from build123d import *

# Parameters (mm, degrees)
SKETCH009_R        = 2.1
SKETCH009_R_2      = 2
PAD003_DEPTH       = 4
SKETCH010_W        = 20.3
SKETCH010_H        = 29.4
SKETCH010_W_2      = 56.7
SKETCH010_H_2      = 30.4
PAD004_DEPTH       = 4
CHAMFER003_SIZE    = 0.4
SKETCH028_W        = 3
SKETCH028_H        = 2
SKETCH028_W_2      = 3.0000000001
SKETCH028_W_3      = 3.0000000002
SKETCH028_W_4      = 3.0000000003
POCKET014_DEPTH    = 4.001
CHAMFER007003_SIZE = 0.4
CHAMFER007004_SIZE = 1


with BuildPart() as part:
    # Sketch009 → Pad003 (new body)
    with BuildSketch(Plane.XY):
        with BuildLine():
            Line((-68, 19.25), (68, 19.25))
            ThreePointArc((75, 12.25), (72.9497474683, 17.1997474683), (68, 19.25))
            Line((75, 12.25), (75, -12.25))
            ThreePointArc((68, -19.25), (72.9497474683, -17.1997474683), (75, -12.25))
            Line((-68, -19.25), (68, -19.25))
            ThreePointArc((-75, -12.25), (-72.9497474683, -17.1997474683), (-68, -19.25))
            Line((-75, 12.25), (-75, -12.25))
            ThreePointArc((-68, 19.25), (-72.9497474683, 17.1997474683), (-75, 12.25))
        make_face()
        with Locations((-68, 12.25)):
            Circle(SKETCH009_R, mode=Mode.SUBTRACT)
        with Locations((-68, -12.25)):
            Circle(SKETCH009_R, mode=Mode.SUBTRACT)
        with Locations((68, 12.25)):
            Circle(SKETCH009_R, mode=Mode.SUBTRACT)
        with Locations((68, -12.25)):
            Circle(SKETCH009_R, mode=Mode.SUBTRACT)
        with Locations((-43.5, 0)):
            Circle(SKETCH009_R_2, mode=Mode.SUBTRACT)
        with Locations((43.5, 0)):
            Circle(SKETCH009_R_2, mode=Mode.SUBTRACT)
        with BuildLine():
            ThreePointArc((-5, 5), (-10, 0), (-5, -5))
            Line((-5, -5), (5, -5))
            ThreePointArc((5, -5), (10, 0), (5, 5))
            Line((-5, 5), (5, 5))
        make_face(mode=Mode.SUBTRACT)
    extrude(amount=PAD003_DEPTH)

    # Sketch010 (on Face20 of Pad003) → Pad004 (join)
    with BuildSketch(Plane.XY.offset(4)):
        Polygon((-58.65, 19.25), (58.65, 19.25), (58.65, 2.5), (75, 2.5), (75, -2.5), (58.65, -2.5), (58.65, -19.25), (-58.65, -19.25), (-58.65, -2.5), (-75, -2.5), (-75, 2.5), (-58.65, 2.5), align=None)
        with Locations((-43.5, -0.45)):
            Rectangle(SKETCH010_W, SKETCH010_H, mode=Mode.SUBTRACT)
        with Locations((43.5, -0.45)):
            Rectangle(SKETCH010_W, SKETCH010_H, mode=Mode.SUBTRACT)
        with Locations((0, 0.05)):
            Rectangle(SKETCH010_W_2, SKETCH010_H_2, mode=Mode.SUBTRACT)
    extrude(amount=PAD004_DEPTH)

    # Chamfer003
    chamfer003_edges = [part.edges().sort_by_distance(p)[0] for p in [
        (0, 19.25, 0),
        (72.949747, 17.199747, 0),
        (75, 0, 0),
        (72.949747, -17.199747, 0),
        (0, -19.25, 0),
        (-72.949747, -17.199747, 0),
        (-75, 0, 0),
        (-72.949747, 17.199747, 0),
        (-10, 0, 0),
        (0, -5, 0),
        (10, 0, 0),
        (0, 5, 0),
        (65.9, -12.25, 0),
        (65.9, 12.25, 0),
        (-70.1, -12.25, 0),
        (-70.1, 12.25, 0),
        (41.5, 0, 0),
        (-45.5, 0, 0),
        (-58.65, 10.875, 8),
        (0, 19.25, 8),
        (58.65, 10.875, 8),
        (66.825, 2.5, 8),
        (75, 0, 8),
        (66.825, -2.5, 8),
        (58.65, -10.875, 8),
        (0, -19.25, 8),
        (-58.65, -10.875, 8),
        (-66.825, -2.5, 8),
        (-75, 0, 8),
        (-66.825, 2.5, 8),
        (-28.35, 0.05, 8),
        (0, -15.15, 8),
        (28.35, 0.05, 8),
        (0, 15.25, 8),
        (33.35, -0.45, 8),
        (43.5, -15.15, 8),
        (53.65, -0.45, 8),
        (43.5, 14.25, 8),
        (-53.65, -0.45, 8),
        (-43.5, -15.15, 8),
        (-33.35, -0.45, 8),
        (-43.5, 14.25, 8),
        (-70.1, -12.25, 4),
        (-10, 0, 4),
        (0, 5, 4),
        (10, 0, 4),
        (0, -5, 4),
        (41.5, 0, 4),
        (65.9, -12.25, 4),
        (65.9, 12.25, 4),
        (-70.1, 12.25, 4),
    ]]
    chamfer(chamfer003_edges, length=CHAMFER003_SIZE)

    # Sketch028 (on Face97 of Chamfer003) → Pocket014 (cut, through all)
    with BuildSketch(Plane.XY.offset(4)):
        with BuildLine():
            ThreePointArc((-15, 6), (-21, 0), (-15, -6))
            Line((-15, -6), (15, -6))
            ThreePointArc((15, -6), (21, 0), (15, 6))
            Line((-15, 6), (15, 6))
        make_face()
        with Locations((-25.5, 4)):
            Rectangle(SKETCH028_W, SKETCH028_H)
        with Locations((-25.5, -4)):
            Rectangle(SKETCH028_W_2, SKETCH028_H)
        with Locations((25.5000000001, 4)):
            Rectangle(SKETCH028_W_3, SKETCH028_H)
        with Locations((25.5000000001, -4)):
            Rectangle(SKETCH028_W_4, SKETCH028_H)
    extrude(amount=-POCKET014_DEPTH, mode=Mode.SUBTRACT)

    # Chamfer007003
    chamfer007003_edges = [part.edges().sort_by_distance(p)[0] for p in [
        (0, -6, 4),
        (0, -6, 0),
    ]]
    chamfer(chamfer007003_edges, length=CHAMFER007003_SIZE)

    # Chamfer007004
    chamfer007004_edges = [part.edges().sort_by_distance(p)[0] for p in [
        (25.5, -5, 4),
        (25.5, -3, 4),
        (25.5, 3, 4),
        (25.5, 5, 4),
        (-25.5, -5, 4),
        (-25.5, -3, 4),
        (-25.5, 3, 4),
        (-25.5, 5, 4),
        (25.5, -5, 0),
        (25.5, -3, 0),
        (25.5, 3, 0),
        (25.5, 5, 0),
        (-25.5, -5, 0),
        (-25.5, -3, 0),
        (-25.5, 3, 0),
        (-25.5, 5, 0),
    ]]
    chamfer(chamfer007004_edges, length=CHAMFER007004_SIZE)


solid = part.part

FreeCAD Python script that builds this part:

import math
import FreeCAD as App
import Part
import Sketcher

V = App.Vector


def edges_at(feature, points):
    """Names of the edges that pass closest to the given points."""
    edges = feature.Shape.Edges
    near = lambda p: min(range(len(edges)), key=lambda i: edges[i].distToShape(Part.Vertex(*p))[0])
    return sorted({f"Edge{near(p) + 1}" for p in points})


def add_polygon(sketch, points):
    """Adds a closed chain of lines whose ends are joined by coincident constraints."""
    first, n = sketch.GeometryCount, len(points)
    for a, b in zip(points, points[1:] + points[:1]):
        sketch.addGeometry(Part.LineSegment(App.Vector(*a, 0), App.Vector(*b, 0)), False)
    for i in range(n):
        sketch.addConstraint(Sketcher.Constraint("Coincident", first + i, 2, first + (i + 1) % n, 1))

doc = App.newDocument("Part")
body = doc.addObject("PartDesign::Body", "Body")

# Sketch on XY plane
sketch1 = body.newObject("Sketcher::SketchObject", "Sketch")
sketch1.AttachmentSupport = (doc.getObject("XY_Plane"), [""])
sketch1.MapMode = "FlatFace"
sketch1.addGeometry(Part.LineSegment(V(68, 19.25, 0), V(-68, 19.25, 0)), False)
sketch1.addGeometry(Part.ArcOfCircle(Part.Circle(V(-68, 12.25, 0), V(0, 0, 1), 7), math.radians(90), math.radians(180)), False)
sketch1.addGeometry(Part.LineSegment(V(-75, 12.25, 0), V(-75, -12.25, 0)), False)
sketch1.addGeometry(Part.ArcOfCircle(Part.Circle(V(-68, -12.25, 0), V(0, 0, 1), 7), math.radians(180), math.radians(270)), False)
sketch1.addGeometry(Part.LineSegment(V(-68, -19.25, 0), V(68, -19.25, 0)), False)
sketch1.addGeometry(Part.ArcOfCircle(Part.Circle(V(68, -12.25, 0), V(0, 0, 1), 7), math.radians(-90), math.radians(0)), False)
sketch1.addGeometry(Part.LineSegment(V(75, -12.25, 0), V(75, 12.25, 0)), False)
sketch1.addGeometry(Part.ArcOfCircle(Part.Circle(V(68, 12.25, 0), V(0, 0, 1), 7), math.radians(0), math.radians(90)), False)
sketch1.addGeometry(Part.Circle(V(68, -12.25, 0), V(0, 0, 1), 2.1), False)
sketch1.addGeometry(Part.Circle(V(-68, -12.25, 0), V(0, 0, 1), 2.1), False)
sketch1.addGeometry(Part.Circle(V(43.5, 0, 0), V(0, 0, 1), 2), False)
sketch1.addGeometry(Part.Circle(V(68, 12.25, 0), V(0, 0, 1), 2.1), False)
sketch1.addGeometry(Part.LineSegment(V(-5, 5, 0), V(5, 5, 0)), False)
sketch1.addGeometry(Part.ArcOfCircle(Part.Circle(V(5, 0, 0), V(0, 0, 1), 5), math.radians(-90), math.radians(90)), False)
sketch1.addGeometry(Part.LineSegment(V(5, -5, 0), V(-5, -5, 0)), False)
sketch1.addGeometry(Part.ArcOfCircle(Part.Circle(V(-5, 0, 0), V(0, 0, 1), 5), math.radians(90), math.radians(270)), False)
sketch1.addGeometry(Part.Circle(V(-43.5, 0, 0), V(0, 0, 1), 2), False)
sketch1.addGeometry(Part.Circle(V(-68, 12.25, 0), V(0, 0, 1), 2.1), False)
sketch1.addConstraint(Sketcher.Constraint("Tangent", 0, 2, 1, 1))
sketch1.addConstraint(Sketcher.Constraint("Tangent", 1, 2, 2, 1))
sketch1.addConstraint(Sketcher.Constraint("Tangent", 2, 2, 3, 1))
sketch1.addConstraint(Sketcher.Constraint("Tangent", 3, 2, 4, 1))
sketch1.addConstraint(Sketcher.Constraint("Tangent", 4, 2, 5, 1))
sketch1.addConstraint(Sketcher.Constraint("Tangent", 5, 2, 6, 1))
sketch1.addConstraint(Sketcher.Constraint("Tangent", 6, 2, 7, 1))
sketch1.addConstraint(Sketcher.Constraint("Tangent", 7, 2, 0, 1))
sketch1.addConstraint(Sketcher.Constraint("Tangent", 12, 2, 13, 2))
sketch1.addConstraint(Sketcher.Constraint("Tangent", 13, 1, 14, 1))
sketch1.addConstraint(Sketcher.Constraint("Tangent", 14, 2, 15, 2))
sketch1.addConstraint(Sketcher.Constraint("Tangent", 15, 1, 12, 1))
sketch1.addConstraint(Sketcher.Constraint("Horizontal", 0))
sketch1.addConstraint(Sketcher.Constraint("Vertical", 2))
sketch1.addConstraint(Sketcher.Constraint("Horizontal", 4))
sketch1.addConstraint(Sketcher.Constraint("Vertical", 6))
sketch1.addConstraint(Sketcher.Constraint("Horizontal", 12))
sketch1.addConstraint(Sketcher.Constraint("Horizontal", 14))
sketch1.addConstraint(Sketcher.Constraint("Coincident", 8, 3, 5, 3))
sketch1.addConstraint(Sketcher.Constraint("Coincident", 9, 3, 3, 3))
sketch1.addConstraint(Sketcher.Constraint("Coincident", 11, 3, 7, 3))
sketch1.addConstraint(Sketcher.Constraint("Coincident", 17, 3, 1, 3))
sketch1.addConstraint(Sketcher.Constraint("Equal", 1, 3))
sketch1.addConstraint(Sketcher.Constraint("Equal", 3, 5))
sketch1.addConstraint(Sketcher.Constraint("Equal", 5, 7))
sketch1.addConstraint(Sketcher.Constraint("Equal", 8, 9))
sketch1.addConstraint(Sketcher.Constraint("Equal", 9, 11))
sketch1.addConstraint(Sketcher.Constraint("Equal", 10, 16))
sketch1.addConstraint(Sketcher.Constraint("Equal", 11, 17))
sketch1.addConstraint(Sketcher.Constraint("Symmetric", 1, 3, 5, 3, -1, 1))
sketch1.addConstraint(Sketcher.Constraint("Symmetric", 13, 3, 15, 3, -1, 1))
sketch1.addConstraint(Sketcher.Constraint("Symmetric", 10, 3, 16, 3, -1, 1))
sketch1.addConstraint(Sketcher.Constraint("PointOnObject", 10, 3, -1))
sketch1.addConstraint(Sketcher.Constraint("Diameter", 10, 4.0))
sketch1.addConstraint(Sketcher.Constraint("Radius", 1, 7.0))
sketch1.addConstraint(Sketcher.Constraint("Radius", 13, 5.0))
sketch1.addConstraint(Sketcher.Constraint("Diameter", 8, 4.2))
sketch1.addConstraint(Sketcher.Constraint("DistanceX", 0, 2, 0, 1, 136.0))
sketch1.addConstraint(Sketcher.Constraint("DistanceX", 12, 1, 12, 2, 10.0))
sketch1.addConstraint(Sketcher.Constraint("DistanceY", 2, 2, 2, 1, 24.5))
sketch1.addConstraint(Sketcher.Constraint("DistanceX", -1, 1, 10, 3, 43.5))
pad1 = body.newObject("PartDesign::Pad", "Pad")
pad1.Profile = sketch1
pad1.Length = 4

# Sketch on XY plane
sketch2 = body.newObject("Sketcher::SketchObject", "Sketch001")
sketch2.AttachmentSupport = (doc.getObject("XY_Plane"), [""])
sketch2.MapMode = "FlatFace"
sketch2.AttachmentOffset = App.Placement(V(0, 0, 4), App.Rotation())
add_polygon(sketch2, [(58.65, 19.25), (-58.65, 19.25), (-58.65, 2.5), (-75, 2.5), (-75, -2.5), (-58.65, -2.5), (-58.65, -19.25), (58.65, -19.25), (58.65, -2.5), (75, -2.5), (75, 2.5), (58.65, 2.5)])  # lines 0-11
add_polygon(sketch2, [(33.35, -15.15), (33.35, 14.25), (53.65, 14.25), (53.65, -15.15)])  # lines 12-15
add_polygon(sketch2, [(-28.35, -15.15), (-28.35, 15.25), (28.35, 15.25), (28.35, -15.15)])  # lines 16-19
add_polygon(sketch2, [(-53.65, -15.15), (-53.65, 14.25), (-33.35, 14.25), (-33.35, -15.15)])  # lines 20-23
sketch2.addConstraint(Sketcher.Constraint("Horizontal", 0))
sketch2.addConstraint(Sketcher.Constraint("Vertical", 1))
sketch2.addConstraint(Sketcher.Constraint("Horizontal", 2))
sketch2.addConstraint(Sketcher.Constraint("Vertical", 3))
sketch2.addConstraint(Sketcher.Constraint("Horizontal", 4))
sketch2.addConstraint(Sketcher.Constraint("Vertical", 5))
sketch2.addConstraint(Sketcher.Constraint("Horizontal", 6))
sketch2.addConstraint(Sketcher.Constraint("Vertical", 7))
sketch2.addConstraint(Sketcher.Constraint("Horizontal", 8))
sketch2.addConstraint(Sketcher.Constraint("Vertical", 9))
sketch2.addConstraint(Sketcher.Constraint("Horizontal", 10))
sketch2.addConstraint(Sketcher.Constraint("Vertical", 11))
sketch2.addConstraint(Sketcher.Constraint("Vertical", 12))
sketch2.addConstraint(Sketcher.Constraint("Horizontal", 13))
sketch2.addConstraint(Sketcher.Constraint("Vertical", 14))
sketch2.addConstraint(Sketcher.Constraint("Horizontal", 15))
sketch2.addConstraint(Sketcher.Constraint("Vertical", 16))
sketch2.addConstraint(Sketcher.Constraint("Horizontal", 17))
sketch2.addConstraint(Sketcher.Constraint("Vertical", 18))
sketch2.addConstraint(Sketcher.Constraint("Horizontal", 19))
sketch2.addConstraint(Sketcher.Constraint("Vertical", 20))
sketch2.addConstraint(Sketcher.Constraint("Horizontal", 21))
sketch2.addConstraint(Sketcher.Constraint("Vertical", 22))
sketch2.addConstraint(Sketcher.Constraint("Horizontal", 23))
sketch2.addConstraint(Sketcher.Constraint("Symmetric", 0, 2, 6, 2, -1, 1))
sketch2.addConstraint(Sketcher.Constraint("Symmetric", 2, 2, 8, 2, -1, 1))
sketch2.addConstraint(Sketcher.Constraint("Symmetric", 4, 2, 10, 2, -1, 1))
sketch2.addConstraint(Sketcher.Constraint("Symmetric", 4, 2, 7, 2, -2))
sketch2.addConstraint(Sketcher.Constraint("Symmetric", 13, 2, 20, 2, -2))
sketch2.addConstraint(Sketcher.Constraint("Symmetric", 15, 2, 22, 2, -2))
sketch2.addConstraint(Sketcher.Constraint("Horizontal", 15, 2, 18, 2))
sketch2.addConstraint(Sketcher.Constraint("DistanceY", 3, 2, 3, 1, 5.0))
sketch2.addConstraint(Sketcher.Constraint("DistanceX", 0, 2, 0, 1, 117.3))
sketch2.addConstraint(Sketcher.Constraint("DistanceX", 13, 1, 13, 2, 20.3))
sketch2.addConstraint(Sketcher.Constraint("DistanceX", 17, 1, 17, 2, 56.7))
sketch2.addConstraint(Sketcher.Constraint("DistanceY", 12, 1, 12, 2, 29.4))
sketch2.addConstraint(Sketcher.Constraint("DistanceY", 16, 1, 16, 2, 30.4))
sketch2.addConstraint(Sketcher.Constraint("DistanceX", 2, 2, -1, 1, 75.0))
sketch2.addConstraint(Sketcher.Constraint("DistanceY", 12, 2, 11, 2, 5.0))
sketch2.addConstraint(Sketcher.Constraint("DistanceX", 13, 2, 11, 2, 5.0))
sketch2.addConstraint(Sketcher.Constraint("DistanceX", 17, 2, 12, 2, 5.0))
sketch2.addConstraint(Sketcher.Constraint("DistanceY", 1, 2, 1, 1, 16.75))
pad2 = body.newObject("PartDesign::Pad", "Pad001")
pad2.Profile = sketch2
pad2.Length = 4
doc.recompute()

chamfer = body.newObject("PartDesign::Chamfer", "Chamfer")
chamfer.Base = (pad2, edges_at(pad2, [
    (0, 19.25, 0),
    (72.95, 17.2, 0),
    (75, 0, 0),
    (72.95, -17.2, 0),
    (0, -19.25, 0),
    (-72.95, -17.2, 0),
    (-75, 0, 0),
    (-72.95, 17.2, 0),
    (-10, 0, 0),
    (0, -5, 0),
    (10, 0, 0),
    (0, 5, 0),
    (65.9, -12.25, 0),
    (65.9, 12.25, 0),
    (-70.1, -12.25, 0),
    (-70.1, 12.25, 0),
    (41.5, 0, 0),
    (-45.5, 0, 0),
    (-58.65, 10.875, 8),
    (0, 19.25, 8),
    (58.65, 10.875, 8),
    (66.825, 2.5, 8),
    (75, 0, 8),
    (66.825, -2.5, 8),
    (58.65, -10.875, 8),
    (0, -19.25, 8),
    (-58.65, -10.875, 8),
    (-66.825, -2.5, 8),
    (-75, 0, 8),
    (-66.825, 2.5, 8),
    (-28.35, 0.05, 8),
    (0, -15.15, 8),
    (28.35, 0.05, 8),
    (0, 15.25, 8),
    (33.35, -0.45, 8),
    (43.5, -15.15, 8),
    (53.65, -0.45, 8),
    (43.5, 14.25, 8),
    (-53.65, -0.45, 8),
    (-43.5, -15.15, 8),
    (-33.35, -0.45, 8),
    (-43.5, 14.25, 8),
    (-70.1, -12.25, 4),
    (-10, 0, 4),
    (0, 5, 4),
    (10, 0, 4),
    (0, -5, 4),
    (41.5, 0, 4),
    (65.9, -12.25, 4),
    (65.9, 12.25, 4),
    (-70.1, 12.25, 4),
]))
chamfer.Size = 0.4

# Sketch on XY plane
sketch3 = body.newObject("Sketcher::SketchObject", "Sketch002")
sketch3.AttachmentSupport = (doc.getObject("XY_Plane"), [""])
sketch3.MapMode = "FlatFace"
sketch3.AttachmentOffset = App.Placement(V(0, 0, 4), App.Rotation())
sketch3.addGeometry(Part.ArcOfCircle(Part.Circle(V(-15, 0, 0), V(0, 0, 1), 6), math.radians(90), math.radians(270)), False)  # 0
sketch3.addGeometry(Part.LineSegment(V(-15, -6, 0), V(15, -6, 0)), False)  # 1
sketch3.addGeometry(Part.ArcOfCircle(Part.Circle(V(15, 0, 0), V(0, 0, 1), 6), math.radians(-90), math.radians(90)), False)  # 2
sketch3.addGeometry(Part.LineSegment(V(15, 6, 0), V(-15, 6, 0)), False)  # 3
add_polygon(sketch3, [(-27, 5), (-27, 3), (-24, 3), (-24, 5)])  # lines 4-7
add_polygon(sketch3, [(-27, -3), (-27, -5), (-24, -5), (-24, -3)])  # lines 8-11
add_polygon(sketch3, [(24, 5), (24, 3), (27, 3), (27, 5)])  # lines 12-15
add_polygon(sketch3, [(24, -3), (24, -5), (27, -5), (27, -3)])  # lines 16-19
sketch3.addConstraint(Sketcher.Constraint("Tangent", 0, 2, 1, 1))
sketch3.addConstraint(Sketcher.Constraint("Tangent", 1, 2, 2, 1))
sketch3.addConstraint(Sketcher.Constraint("Tangent", 2, 2, 3, 1))
sketch3.addConstraint(Sketcher.Constraint("Tangent", 3, 2, 0, 1))
sketch3.addConstraint(Sketcher.Constraint("Horizontal", 1))
sketch3.addConstraint(Sketcher.Constraint("Horizontal", 3))
sketch3.addConstraint(Sketcher.Constraint("Vertical", 4))
sketch3.addConstraint(Sketcher.Constraint("Horizontal", 5))
sketch3.addConstraint(Sketcher.Constraint("Vertical", 6))
sketch3.addConstraint(Sketcher.Constraint("Horizontal", 7))
sketch3.addConstraint(Sketcher.Constraint("Vertical", 8))
sketch3.addConstraint(Sketcher.Constraint("Horizontal", 9))
sketch3.addConstraint(Sketcher.Constraint("Vertical", 10))
sketch3.addConstraint(Sketcher.Constraint("Horizontal", 11))
sketch3.addConstraint(Sketcher.Constraint("Vertical", 12))
sketch3.addConstraint(Sketcher.Constraint("Horizontal", 13))
sketch3.addConstraint(Sketcher.Constraint("Vertical", 14))
sketch3.addConstraint(Sketcher.Constraint("Horizontal", 15))
sketch3.addConstraint(Sketcher.Constraint("Vertical", 16))
sketch3.addConstraint(Sketcher.Constraint("Horizontal", 17))
sketch3.addConstraint(Sketcher.Constraint("Vertical", 18))
sketch3.addConstraint(Sketcher.Constraint("Horizontal", 19))
sketch3.addConstraint(Sketcher.Constraint("Symmetric", 0, 3, 2, 3, -1, 1))
sketch3.addConstraint(Sketcher.Constraint("Symmetric", 10, 2, 12, 2, -1, 1))
sketch3.addConstraint(Sketcher.Constraint("Symmetric", 8, 2, 14, 2, -1, 1))
sketch3.addConstraint(Sketcher.Constraint("Symmetric", 6, 2, 16, 2, -1, 1))
sketch3.addConstraint(Sketcher.Constraint("Symmetric", 4, 2, 18, 2, -1, 1))
sketch3.addConstraint(Sketcher.Constraint("Symmetric", 5, 2, 12, 2, -2))
sketch3.addConstraint(Sketcher.Constraint("Symmetric", 7, 2, 14, 2, -2))
sketch3.addConstraint(Sketcher.Constraint("Radius", 0, 6.0))
sketch3.addConstraint(Sketcher.Constraint("DistanceX", 1, 1, 1, 2, 30.0))
sketch3.addConstraint(Sketcher.Constraint("DistanceX", 5, 1, 5, 2, 3.0))
sketch3.addConstraint(Sketcher.Constraint("DistanceY", 4, 2, 4, 1, 2.0))
sketch3.addConstraint(Sketcher.Constraint("DistanceX", 4, 2, -1, 1, 27.0))
sketch3.addConstraint(Sketcher.Constraint("DistanceY", -1, 1, 4, 2, 3.0))
pocket1 = body.newObject("PartDesign::Pocket", "Pocket")
pocket1.Profile = sketch3
pocket1.Type = "ThroughAll"
doc.recompute()

chamfer2 = body.newObject("PartDesign::Chamfer", "Chamfer001")
chamfer2.Base = (pocket1, edges_at(pocket1, [(0, -6, 4), (0, -6, 0)]))
chamfer2.Size = 0.4
doc.recompute()

chamfer3 = body.newObject("PartDesign::Chamfer", "Chamfer002")
chamfer3.Base = (chamfer2, edges_at(chamfer2, [
    (25.5, -5, 4),
    (25.5, -3, 4),
    (25.5, 3, 4),
    (25.5, 5, 4),
    (-25.5, -5, 4),
    (-25.5, -3, 4),
    (-25.5, 3, 4),
    (-25.5, 5, 4),
    (25.5, -5, 0),
    (25.5, -3, 0),
    (25.5, 3, 0),
    (25.5, 5, 0),
    (-25.5, -5, 0),
    (-25.5, -3, 0),
    (-25.5, 3, 0),
    (-25.5, 5, 0),
]))
chamfer3.Size = 1

doc.recompute()
